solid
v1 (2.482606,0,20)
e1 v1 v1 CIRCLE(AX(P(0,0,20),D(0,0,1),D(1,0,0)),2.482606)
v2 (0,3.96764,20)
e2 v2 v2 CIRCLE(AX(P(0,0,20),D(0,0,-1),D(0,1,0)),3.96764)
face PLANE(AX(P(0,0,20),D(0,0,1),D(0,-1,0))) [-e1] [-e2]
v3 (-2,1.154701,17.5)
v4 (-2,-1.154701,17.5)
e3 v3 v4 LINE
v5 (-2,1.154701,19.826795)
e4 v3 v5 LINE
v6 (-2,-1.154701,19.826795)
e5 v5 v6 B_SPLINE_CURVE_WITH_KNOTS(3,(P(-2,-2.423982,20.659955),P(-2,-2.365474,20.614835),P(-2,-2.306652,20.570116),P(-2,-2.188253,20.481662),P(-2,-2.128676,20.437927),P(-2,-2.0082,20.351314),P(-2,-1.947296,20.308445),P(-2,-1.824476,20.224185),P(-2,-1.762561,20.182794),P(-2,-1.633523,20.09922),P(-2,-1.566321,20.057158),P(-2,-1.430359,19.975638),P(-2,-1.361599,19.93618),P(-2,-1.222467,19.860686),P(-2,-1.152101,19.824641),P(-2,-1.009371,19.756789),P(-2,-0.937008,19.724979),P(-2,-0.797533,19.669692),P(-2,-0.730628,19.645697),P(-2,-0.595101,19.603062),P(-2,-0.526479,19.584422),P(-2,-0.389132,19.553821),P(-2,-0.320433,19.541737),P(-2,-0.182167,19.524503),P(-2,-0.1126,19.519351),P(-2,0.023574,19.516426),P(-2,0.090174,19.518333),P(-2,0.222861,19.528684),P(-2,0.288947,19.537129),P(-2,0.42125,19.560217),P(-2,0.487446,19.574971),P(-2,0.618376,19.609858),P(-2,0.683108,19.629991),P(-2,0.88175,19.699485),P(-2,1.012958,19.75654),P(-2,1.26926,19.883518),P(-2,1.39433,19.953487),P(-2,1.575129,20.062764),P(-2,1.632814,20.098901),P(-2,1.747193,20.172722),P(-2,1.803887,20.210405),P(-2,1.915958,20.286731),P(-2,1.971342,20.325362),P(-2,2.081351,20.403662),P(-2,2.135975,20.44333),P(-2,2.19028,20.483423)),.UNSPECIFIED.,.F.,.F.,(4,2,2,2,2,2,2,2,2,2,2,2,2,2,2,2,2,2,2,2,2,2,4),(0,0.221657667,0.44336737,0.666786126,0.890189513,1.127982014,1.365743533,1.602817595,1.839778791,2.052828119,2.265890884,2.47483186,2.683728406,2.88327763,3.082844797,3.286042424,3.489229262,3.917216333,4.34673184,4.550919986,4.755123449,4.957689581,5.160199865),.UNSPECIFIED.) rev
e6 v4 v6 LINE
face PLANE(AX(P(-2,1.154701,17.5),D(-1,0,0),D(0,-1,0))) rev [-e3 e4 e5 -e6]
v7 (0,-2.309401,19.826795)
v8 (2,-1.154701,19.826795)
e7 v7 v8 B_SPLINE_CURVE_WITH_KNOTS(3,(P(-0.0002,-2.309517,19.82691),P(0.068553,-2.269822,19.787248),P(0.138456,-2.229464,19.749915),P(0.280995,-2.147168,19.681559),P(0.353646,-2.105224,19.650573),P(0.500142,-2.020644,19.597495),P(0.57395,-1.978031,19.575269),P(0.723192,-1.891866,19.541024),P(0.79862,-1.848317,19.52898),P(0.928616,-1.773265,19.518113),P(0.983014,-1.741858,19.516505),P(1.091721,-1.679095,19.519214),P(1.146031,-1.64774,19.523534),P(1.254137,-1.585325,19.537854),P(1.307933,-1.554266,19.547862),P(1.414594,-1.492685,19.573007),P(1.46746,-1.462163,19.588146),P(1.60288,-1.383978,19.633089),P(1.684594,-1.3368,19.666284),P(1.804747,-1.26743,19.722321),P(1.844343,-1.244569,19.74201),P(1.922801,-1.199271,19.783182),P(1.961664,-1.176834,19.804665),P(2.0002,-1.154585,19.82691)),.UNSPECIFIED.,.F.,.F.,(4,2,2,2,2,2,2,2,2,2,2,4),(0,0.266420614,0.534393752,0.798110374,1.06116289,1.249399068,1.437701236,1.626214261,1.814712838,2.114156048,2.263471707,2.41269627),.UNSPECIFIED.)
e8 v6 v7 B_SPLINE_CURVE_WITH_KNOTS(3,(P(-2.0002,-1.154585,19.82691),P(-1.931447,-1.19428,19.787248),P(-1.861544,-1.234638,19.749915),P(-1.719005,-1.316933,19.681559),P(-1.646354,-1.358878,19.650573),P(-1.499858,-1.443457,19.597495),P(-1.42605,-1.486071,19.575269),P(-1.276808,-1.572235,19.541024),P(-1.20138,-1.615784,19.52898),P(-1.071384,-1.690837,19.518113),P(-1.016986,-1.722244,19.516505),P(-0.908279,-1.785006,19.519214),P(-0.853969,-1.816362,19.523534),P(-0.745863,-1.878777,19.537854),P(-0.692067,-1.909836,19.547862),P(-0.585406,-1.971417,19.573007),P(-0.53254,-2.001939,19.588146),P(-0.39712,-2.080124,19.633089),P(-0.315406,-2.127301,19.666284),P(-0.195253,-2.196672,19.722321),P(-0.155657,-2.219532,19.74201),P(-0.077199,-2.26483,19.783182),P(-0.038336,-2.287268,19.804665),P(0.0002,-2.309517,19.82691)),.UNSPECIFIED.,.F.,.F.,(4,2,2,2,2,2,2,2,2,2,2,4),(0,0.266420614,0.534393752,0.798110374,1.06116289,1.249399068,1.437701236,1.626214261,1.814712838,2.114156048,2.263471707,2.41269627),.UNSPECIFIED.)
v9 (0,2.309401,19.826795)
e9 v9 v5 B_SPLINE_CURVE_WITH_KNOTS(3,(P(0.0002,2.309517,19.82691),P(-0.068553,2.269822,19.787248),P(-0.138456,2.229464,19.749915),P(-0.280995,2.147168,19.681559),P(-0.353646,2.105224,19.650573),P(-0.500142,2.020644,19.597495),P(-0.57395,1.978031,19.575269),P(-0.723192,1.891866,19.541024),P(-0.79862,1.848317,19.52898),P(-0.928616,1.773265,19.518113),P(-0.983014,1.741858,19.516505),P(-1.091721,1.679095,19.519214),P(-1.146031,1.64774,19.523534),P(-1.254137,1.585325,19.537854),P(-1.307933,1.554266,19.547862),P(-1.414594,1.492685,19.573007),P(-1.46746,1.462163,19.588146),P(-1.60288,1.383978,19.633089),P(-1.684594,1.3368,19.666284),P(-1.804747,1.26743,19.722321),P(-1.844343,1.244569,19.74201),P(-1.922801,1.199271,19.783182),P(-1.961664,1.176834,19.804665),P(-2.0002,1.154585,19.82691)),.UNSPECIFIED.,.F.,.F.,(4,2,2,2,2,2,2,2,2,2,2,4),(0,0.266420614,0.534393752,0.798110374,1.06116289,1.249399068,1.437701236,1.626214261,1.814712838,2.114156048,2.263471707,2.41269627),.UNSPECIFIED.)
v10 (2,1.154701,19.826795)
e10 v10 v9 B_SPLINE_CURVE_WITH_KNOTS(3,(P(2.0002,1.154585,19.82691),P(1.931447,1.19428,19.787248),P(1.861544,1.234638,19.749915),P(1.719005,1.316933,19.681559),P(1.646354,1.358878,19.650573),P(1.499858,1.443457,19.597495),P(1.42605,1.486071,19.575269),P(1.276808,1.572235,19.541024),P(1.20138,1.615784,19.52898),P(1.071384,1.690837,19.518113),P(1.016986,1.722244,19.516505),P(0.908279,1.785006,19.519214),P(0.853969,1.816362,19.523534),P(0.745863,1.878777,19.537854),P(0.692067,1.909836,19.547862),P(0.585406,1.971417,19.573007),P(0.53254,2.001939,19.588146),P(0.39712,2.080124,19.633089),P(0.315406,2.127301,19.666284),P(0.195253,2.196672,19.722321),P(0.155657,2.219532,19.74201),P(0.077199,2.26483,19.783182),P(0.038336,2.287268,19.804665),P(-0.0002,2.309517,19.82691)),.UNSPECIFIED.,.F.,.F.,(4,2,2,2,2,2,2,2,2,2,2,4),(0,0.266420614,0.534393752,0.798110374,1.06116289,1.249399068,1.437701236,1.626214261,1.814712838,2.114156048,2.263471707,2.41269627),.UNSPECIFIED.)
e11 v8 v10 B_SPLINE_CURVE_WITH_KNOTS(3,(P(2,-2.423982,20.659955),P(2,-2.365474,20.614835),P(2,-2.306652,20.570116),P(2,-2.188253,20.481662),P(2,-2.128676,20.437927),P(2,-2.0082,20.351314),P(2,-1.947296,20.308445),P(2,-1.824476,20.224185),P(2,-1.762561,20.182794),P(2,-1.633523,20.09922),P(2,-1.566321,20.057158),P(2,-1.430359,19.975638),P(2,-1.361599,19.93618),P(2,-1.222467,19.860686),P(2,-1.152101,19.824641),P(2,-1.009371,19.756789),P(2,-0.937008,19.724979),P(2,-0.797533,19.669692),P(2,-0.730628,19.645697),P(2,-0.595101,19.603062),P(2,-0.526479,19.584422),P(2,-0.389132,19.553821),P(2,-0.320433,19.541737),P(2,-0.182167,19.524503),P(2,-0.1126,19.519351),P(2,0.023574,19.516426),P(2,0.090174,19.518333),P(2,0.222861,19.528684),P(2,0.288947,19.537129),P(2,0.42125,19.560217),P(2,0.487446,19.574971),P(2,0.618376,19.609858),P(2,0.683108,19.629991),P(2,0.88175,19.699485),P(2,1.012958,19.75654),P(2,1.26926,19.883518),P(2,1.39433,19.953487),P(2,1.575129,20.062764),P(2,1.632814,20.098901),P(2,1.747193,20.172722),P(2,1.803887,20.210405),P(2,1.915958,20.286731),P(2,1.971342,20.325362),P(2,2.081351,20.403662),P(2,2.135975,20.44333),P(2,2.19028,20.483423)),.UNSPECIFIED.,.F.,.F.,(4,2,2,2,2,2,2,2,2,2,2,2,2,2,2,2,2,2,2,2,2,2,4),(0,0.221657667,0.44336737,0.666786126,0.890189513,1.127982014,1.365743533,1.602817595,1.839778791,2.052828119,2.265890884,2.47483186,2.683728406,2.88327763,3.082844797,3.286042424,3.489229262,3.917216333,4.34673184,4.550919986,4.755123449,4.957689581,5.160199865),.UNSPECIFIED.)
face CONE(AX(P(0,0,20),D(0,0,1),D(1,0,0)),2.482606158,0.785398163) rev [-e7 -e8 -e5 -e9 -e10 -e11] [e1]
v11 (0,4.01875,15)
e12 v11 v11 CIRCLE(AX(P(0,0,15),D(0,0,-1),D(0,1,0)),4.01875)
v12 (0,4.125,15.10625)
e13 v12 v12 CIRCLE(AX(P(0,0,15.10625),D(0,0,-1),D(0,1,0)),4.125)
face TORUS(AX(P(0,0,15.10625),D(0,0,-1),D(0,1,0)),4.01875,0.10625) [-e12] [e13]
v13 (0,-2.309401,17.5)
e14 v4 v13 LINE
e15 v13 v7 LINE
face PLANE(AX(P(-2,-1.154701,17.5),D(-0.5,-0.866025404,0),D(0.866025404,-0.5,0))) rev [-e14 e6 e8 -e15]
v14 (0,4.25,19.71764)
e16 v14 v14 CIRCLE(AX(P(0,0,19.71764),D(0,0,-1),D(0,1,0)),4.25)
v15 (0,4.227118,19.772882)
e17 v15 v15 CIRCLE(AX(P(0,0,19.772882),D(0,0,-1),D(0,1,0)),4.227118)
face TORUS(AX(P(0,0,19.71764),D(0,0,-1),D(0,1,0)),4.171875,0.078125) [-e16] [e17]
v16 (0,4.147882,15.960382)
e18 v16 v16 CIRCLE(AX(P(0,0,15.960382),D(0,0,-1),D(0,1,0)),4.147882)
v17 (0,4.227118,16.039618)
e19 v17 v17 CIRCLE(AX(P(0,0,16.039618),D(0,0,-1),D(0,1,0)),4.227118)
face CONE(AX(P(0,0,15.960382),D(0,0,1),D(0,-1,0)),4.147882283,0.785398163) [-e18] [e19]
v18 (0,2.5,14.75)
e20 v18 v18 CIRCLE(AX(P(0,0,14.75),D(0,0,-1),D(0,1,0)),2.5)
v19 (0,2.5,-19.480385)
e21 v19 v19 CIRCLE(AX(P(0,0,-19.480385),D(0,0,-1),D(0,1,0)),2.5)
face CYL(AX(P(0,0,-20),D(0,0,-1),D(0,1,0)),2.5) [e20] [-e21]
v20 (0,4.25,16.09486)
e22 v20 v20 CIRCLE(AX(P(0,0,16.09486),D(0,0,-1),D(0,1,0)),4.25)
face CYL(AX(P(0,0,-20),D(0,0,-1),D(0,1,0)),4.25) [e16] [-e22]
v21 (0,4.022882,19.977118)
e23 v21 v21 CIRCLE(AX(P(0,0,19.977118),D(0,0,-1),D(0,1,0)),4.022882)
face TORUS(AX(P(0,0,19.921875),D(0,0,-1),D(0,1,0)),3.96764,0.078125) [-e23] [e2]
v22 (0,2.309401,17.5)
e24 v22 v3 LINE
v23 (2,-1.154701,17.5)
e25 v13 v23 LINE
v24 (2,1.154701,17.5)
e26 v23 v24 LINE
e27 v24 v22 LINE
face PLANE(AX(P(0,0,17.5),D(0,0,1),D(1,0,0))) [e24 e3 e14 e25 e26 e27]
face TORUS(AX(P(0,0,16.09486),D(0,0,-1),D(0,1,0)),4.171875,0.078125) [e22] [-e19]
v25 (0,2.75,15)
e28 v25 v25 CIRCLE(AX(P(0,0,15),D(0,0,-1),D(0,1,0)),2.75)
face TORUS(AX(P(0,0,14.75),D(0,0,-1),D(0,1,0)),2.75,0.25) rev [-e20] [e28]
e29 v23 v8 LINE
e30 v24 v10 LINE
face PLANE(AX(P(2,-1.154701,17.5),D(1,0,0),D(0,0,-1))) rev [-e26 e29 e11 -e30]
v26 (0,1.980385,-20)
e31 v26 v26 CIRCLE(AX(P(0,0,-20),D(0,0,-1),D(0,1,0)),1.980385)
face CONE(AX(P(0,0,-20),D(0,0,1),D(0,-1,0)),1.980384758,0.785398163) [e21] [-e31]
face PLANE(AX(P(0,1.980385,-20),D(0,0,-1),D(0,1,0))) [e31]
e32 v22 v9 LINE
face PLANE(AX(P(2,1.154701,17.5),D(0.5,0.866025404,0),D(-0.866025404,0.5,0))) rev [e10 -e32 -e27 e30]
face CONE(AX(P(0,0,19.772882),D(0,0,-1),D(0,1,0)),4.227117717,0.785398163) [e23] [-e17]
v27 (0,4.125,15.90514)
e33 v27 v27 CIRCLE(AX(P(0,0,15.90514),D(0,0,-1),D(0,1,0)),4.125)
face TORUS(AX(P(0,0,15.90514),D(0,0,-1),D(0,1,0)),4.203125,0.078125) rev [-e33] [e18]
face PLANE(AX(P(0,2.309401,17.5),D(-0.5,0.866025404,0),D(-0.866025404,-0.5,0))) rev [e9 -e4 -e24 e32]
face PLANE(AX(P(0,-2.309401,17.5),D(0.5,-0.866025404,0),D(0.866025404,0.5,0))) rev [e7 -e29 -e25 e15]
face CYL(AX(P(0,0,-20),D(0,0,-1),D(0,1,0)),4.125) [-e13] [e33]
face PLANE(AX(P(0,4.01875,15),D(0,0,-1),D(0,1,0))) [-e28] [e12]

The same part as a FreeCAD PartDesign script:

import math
import FreeCAD as App
import Part
import Sketcher
Q = App.Units.Quantity


def add_polygon(sketch, points):
    """Adds a closed chain of lines whose ends are joined by coincident constraints."""
    first, n = sketch.GeometryCount, len(points)
    for a, b in zip(points, points[1:] + points[:1]):
        sketch.addGeometry(Part.LineSegment(App.Vector(*a, 0), App.Vector(*b, 0)), False)
    for i in range(n):
        sketch.addConstraint(Sketcher.Constraint("Coincident", first + i, 2, first + (i + 1) % n, 1))

doc = App.newDocument("Part")
body = doc.addObject("PartDesign::Body", "Body")

# Sketch on YZ plane
sketch1 = doc.addObject("Sketcher::SketchObject", "Sketch")
body.addObject(sketch1)
sketch1.AttachmentSupport = (doc.YZ_Plane, [""])
sketch1.MapMode = "FlatFace"
sketch1.addGeometry(Part.LineSegment(App.Vector(3.97, 20, 0), App.Vector(0, 20, 0)), False)
sketch1.addGeometry(Part.LineSegment(App.Vector(0, 20, 0), App.Vector(0, -20, 0)), False)
sketch1.addGeometry(Part.LineSegment(App.Vector(0, -20, 0), App.Vector(1.98, -20, 0)), False)
sketch1.addGeometry(Part.LineSegment(App.Vector(1.98, -20, 0), App.Vector(2.5, -19.48, 0)), False)
sketch1.addGeometry(Part.LineSegment(App.Vector(2.5, -19.48, 0), App.Vector(2.5, 14.75, 0)), False)
sketch1.addGeometry(Part.ArcOfCircle(Part.Circle(App.Vector(2.75, 14.75, 0), App.Vector(0, 0, 1), 0.25), math.radians(90), math.radians(180)), False)
sketch1.addGeometry(Part.LineSegment(App.Vector(2.75, 15, 0), App.Vector(4.02, 15, 0)), False)
sketch1.addGeometry(Part.ArcOfCircle(Part.Circle(App.Vector(4.02, 15.11, 0), App.Vector(0, 0, 1), 0.11), math.radians(-90), math.radians(0)), False)
sketch1.addGeometry(Part.LineSegment(App.Vector(4.12, 15.11, 0), App.Vector(4.12, 15.91, 0)), False)
sketch1.addGeometry(Part.ArcOfCircle(Part.Circle(App.Vector(4.2, 15.91, 0), App.Vector(0, 0, 1), 0.08), math.radians(135), math.radians(180)), False)
sketch1.addGeometry(Part.LineSegment(App.Vector(4.15, 15.96, 0), App.Vector(4.23, 16.04, 0)), False)
sketch1.addGeometry(Part.ArcOfCircle(Part.Circle(App.Vector(4.17, 16.09, 0), App.Vector(0, 0, 1), 0.08), math.radians(-45), math.radians(0)), False)
sketch1.addGeometry(Part.LineSegment(App.Vector(4.25, 16.09, 0), App.Vector(4.25, 19.72, 0)), False)
sketch1.addGeometry(Part.ArcOfCircle(Part.Circle(App.Vector(4.17, 19.72, 0), App.Vector(0, 0, 1), 0.08), math.radians(0), math.radians(45)), False)
sketch1.addGeometry(Part.LineSegment(App.Vector(4.23, 19.77, 0), App.Vector(4.02, 19.98, 0)), False)
sketch1.addGeometry(Part.ArcOfCircle(Part.Circle(App.Vector(3.97, 19.92, 0), App.Vector(0, 0, 1), 0.08), math.radians(45), math.radians(90)), False)
sketch1.addConstraint(Sketcher.Constraint("Coincident", 0, 2, 1, 1))
sketch1.addConstraint(Sketcher.Constraint("Coincident", 1, 2, 2, 1))
sketch1.addConstraint(Sketcher.Constraint("Coincident", 2, 2, 3, 1))
sketch1.addConstraint(Sketcher.Constraint("Coincident", 3, 2, 4, 1))
sketch1.addConstraint(Sketcher.Constraint("Tangent", 4, 2, 5, 2))
sketch1.addConstraint(Sketcher.Constraint("Tangent", 5, 1, 6, 1))
sketch1.addConstraint(Sketcher.Constraint("Tangent", 6, 2, 7, 1))
sketch1.addConstraint(Sketcher.Constraint("Tangent", 7, 2, 8, 1))
sketch1.addConstraint(Sketcher.Constraint("Tangent", 8, 2, 9, 2))
sketch1.addConstraint(Sketcher.Constraint("Tangent", 9, 1, 10, 1))
sketch1.addConstraint(Sketcher.Constraint("Tangent", 10, 2, 11, 1))
sketch1.addConstraint(Sketcher.Constraint("Tangent", 11, 2, 12, 1))
sketch1.addConstraint(Sketcher.Constraint("Tangent", 12, 2, 13, 1))
sketch1.addConstraint(Sketcher.Constraint("Tangent", 13, 2, 14, 1))
sketch1.addConstraint(Sketcher.Constraint("Tangent", 14, 2, 15, 1))
sketch1.addConstraint(Sketcher.Constraint("Tangent", 15, 2, 0, 1))
sketch1.addConstraint(Sketcher.Constraint("Horizontal", 0))
sketch1.addConstraint(Sketcher.Constraint("Vertical", 1))
sketch1.addConstraint(Sketcher.Constraint("Horizontal", 2))
sketch1.addConstraint(Sketcher.Constraint("Vertical", 4))
sketch1.addConstraint(Sketcher.Constraint("Horizontal", 6))
sketch1.addConstraint(Sketcher.Constraint("Vertical", 8))
sketch1.addConstraint(Sketcher.Constraint("Vertical", 12))
sketch1.addConstraint(Sketcher.Constraint("Equal", 9, 11))
sketch1.addConstraint(Sketcher.Constraint("Equal", 11, 13))
sketch1.addConstraint(Sketcher.Constraint("Equal", 13, 15))
sketch1.addConstraint(Sketcher.Constraint("Symmetric", 0, 2, 1, 2, -1, 1))
sketch1.addConstraint(Sketcher.Constraint("Parallel", 3, 10))
sketch1.addConstraint(Sketcher.Constraint("Perpendicular", 10, 14))
sketch1.addConstraint(Sketcher.Constraint("Vertical", 10, 2, 13, 2))
sketch1.addConstraint(Sketcher.Constraint("DistanceY", 1, 2, 1, 1, 40.0))
sketch1.addConstraint(Sketcher.Constraint("Radius", 5, 0.25))
sketch1.addConstraint(Sketcher.Constraint("DistanceY", -1, 1, 5, 1, 15.0))
sketch1.addConstraint(Sketcher.Constraint("DistanceX", -1, 1, 3, 2, 2.5))
sketch1.addConstraint(Sketcher.Constraint("DistanceX", -1, 1, 11, 2, 4.25))
sketch1.addConstraint(Sketcher.Constraint("Radius", 7, 0.10625))
sketch1.addConstraint(Sketcher.Constraint("DistanceX", -1, 1, 7, 2, 4.125))
sketch1.addConstraint(Sketcher.Constraint("Radius", 9, 0.078125))
sketch1.addConstraint(Sketcher.Constraint("DistanceX", 0, 2, 0, 1, 3.96764))
sketch1.addConstraint(Sketcher.Constraint("DistanceY", 8, 1, 8, 2, 0.79889))
sketch1.addConstraint(Sketcher.Constraint("DistanceX", 2, 1, 2, 2, 1.980385))
revolution = doc.addObject("PartDesign::Revolution", "Revolution")
body.addObject(revolution)
revolution.Profile = sketch1
revolution.ReferenceAxis = (sketch1, ["V_Axis"])
revolution.Angle = 360

# Sketch on XY plane
sketch2 = doc.addObject("Sketcher::SketchObject", "Sketch001")
body.addObject(sketch2)
sketch2.AttachmentSupport = (doc.XY_Plane, [""])
sketch2.MapMode = "FlatFace"
sketch2.AttachmentOffset = App.Placement(App.Vector(0, 0, 17.5), App.Rotation())
add_polygon(sketch2, [(2, -1.2), (2, 1.2), (0, 2.3), (-2, 1.2), (-2, -1.2), (0, -2.3)])  # lines 0-5
sketch2.addConstraint(Sketcher.Constraint("Vertical", 0))
sketch2.addConstraint(Sketcher.Constraint("Vertical", 3))
sketch2.addConstraint(Sketcher.Constraint("Symmetric", 0, 2, 3, 2, -1, 1))
sketch2.addConstraint(Sketcher.Constraint("Symmetric", 1, 2, 4, 2, -1, 1))
sketch2.addConstraint(Sketcher.Constraint("PointOnObject", 1, 2, -2))
sketch2.addConstraint(Sketcher.Constraint("Parallel", 2, 5))
sketch2.addConstraint(Sketcher.Constraint("Horizontal", 0, 2, 2, 2))
sketch2.addConstraint(Sketcher.Constraint("Angle", 1, Q("150 deg")))
sketch2.addConstraint(Sketcher.Constraint("DistanceX", -1, 1, 0, 2, 2.0))
sketch2.addConstraint(Sketcher.Constraint("DistanceY", 0, 1, 0, 2, 2.309401))
pocket1 = doc.addObject("PartDesign::Pocket", "Pocket")
body.addObject(pocket1)
pocket1.Profile = sketch2
pocket1.Length = 2.5
pocket1.Reversed = True

# Sketch on YZ plane
sketch3 = doc.addObject("Sketcher::SketchObject", "Sketch002")
body.addObject(sketch3)
sketch3.AttachmentSupport = (doc.YZ_Plane, [""])
sketch3.MapMode = "FlatFace"
add_polygon(sketch3, [(0, 20), (-2.5, 20), (0, 17.5)])  # lines 0-2
sketch3.addConstraint(Sketcher.Constraint("Horizontal", 0))
sketch3.addConstraint(Sketcher.Constraint("Vertical", 2))
sketch3.addConstraint(Sketcher.Constraint("PointOnObject", 1, 2, -2))
sketch3.addConstraint(Sketcher.Constraint("Equal", 0, 2))
sketch3.addConstraint(Sketcher.Constraint("DistanceY", -1, 1, 0, 2, 20.0))
sketch3.addConstraint(Sketcher.Constraint("DistanceX", 0, 2, 0, 1, 2.482606))
groove = doc.addObject("PartDesign::Groove", "Groove")
body.addObject(groove)
groove.Profile = sketch3
groove.ReferenceAxis = (sketch3, ["V_Axis"])
groove.Angle = 360

doc.recompute()
